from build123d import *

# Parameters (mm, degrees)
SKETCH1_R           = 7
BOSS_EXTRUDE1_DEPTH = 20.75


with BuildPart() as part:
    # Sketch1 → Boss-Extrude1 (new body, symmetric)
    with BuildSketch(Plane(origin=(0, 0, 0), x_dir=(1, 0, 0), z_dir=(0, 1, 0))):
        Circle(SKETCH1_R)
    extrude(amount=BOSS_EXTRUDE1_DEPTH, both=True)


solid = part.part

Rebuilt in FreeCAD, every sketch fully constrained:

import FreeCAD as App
import Part
import Sketcher

V = App.Vector
Q = App.Units.Quantity

doc = App.newDocument("Part")
body = doc.addObject("PartDesign::Body", "Body")

# Sketch on XZ plane
sketch1 = body.newObject("Sketcher::SketchObject", "Sketch")
sketch1.AttachmentSupport = (doc.getObject("XZ_Plane"), [""])
sketch1.MapMode = "FlatFace"
sketch1.addGeometry(Part.Circle(V(0, 0, 0), V(0, 0, 1), 7), False)
sketch1.addConstraint([
    Sketcher.Constraint("Coincident", 0, 3, -1, 1),
    Sketcher.Constraint("Diameter", 0, Q("14 mm")),
])
pad1 = body.newObject("PartDesign::Pad", "Pad")
pad1.Profile = sketch1
pad1.Length = 41.5
pad1.Midplane = True

doc.recompute()
